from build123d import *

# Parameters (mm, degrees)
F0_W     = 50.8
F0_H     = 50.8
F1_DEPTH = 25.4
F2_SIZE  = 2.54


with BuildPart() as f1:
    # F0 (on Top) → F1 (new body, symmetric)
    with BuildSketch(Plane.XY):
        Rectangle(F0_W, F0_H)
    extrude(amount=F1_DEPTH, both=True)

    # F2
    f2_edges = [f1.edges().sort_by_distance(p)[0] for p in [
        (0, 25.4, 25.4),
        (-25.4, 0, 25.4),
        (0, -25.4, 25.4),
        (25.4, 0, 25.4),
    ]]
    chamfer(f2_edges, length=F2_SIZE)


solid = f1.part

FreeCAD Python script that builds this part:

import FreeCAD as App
import Part
import Sketcher
Q = App.Units.Quantity


def edges_at(feature, points):
    """Names of the edges that pass closest to the given points."""
    edges = feature.Shape.Edges
    near = lambda p: min(range(len(edges)), key=lambda i: edges[i].distToShape(Part.Vertex(*p))[0])
    return sorted({f"Edge{near(p) + 1}" for p in points})


def add_polygon(sketch, points):
    """Adds a closed chain of lines whose ends are joined by coincident constraints."""
    first, n = sketch.GeometryCount, len(points)
    for a, b in zip(points, points[1:] + points[:1]):
        sketch.addGeometry(Part.LineSegment(App.Vector(*a, 0), App.Vector(*b, 0)), False)
    for i in range(n):
        sketch.addConstraint(Sketcher.Constraint("Coincident", first + i, 2, first + (i + 1) % n, 1))

doc = App.newDocument("Part")
body = doc.addObject("PartDesign::Body", "Body")

sketch1 = doc.addObject("Sketcher::SketchObject", "Sketch")
body.addObject(sketch1)
sketch1.AttachmentSupport = (doc.XY_Plane, [""])
sketch1.MapMode = "FlatFace"
add_polygon(sketch1, [(-25, 25), (-25, -25), (25, -25), (25, 25)])
sketch1.addConstraint(Sketcher.Constraint("Vertical", 0))
sketch1.addConstraint(Sketcher.Constraint("Horizontal", 1))
sketch1.addConstraint(Sketcher.Constraint("Vertical", 2))
sketch1.addConstraint(Sketcher.Constraint("Horizontal", 3))
sketch1.addConstraint(Sketcher.Constraint("Symmetric", 0, 2, 2, 2, -1, 1))
sketch1.addConstraint(Sketcher.Constraint("Equal", 3, 0))
sketch1.addConstraint(Sketcher.Constraint("DistanceX", 1, 1, 1, 2, Q("2 in")))
pad1 = doc.addObject("PartDesign::Pad", "Pad")
body.addObject(pad1)
pad1.Profile = sketch1
pad1.Length = Q("2 in")
pad1.Midplane = True
doc.recompute()

chamfer = doc.addObject("PartDesign::Chamfer", "Chamfer")
body.addObject(chamfer)
chamfer.Base = (pad1, edges_at(pad1, [
    (0, 25.4, 25.4),
    (-25.4, 0, 25.4),
    (0, -25.4, 25.4),
    (25.4, 0, 25.4),
]))
chamfer.Size = Q("0.1 in")

doc.recompute()
